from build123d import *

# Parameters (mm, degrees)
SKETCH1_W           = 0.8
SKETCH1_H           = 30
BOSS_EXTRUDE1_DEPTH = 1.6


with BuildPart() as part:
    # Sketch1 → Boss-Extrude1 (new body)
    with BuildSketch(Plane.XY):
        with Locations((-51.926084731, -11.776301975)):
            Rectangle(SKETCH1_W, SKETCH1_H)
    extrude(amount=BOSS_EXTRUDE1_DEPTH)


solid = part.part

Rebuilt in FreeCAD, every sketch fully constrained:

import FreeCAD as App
import Part
import Sketcher


def add_polygon(sketch, points):
    """Adds a closed chain of lines whose ends are joined by coincident constraints."""
    first, n = sketch.GeometryCount, len(points)
    for a, b in zip(points, points[1:] + points[:1]):
        sketch.addGeometry(Part.LineSegment(App.Vector(*a, 0), App.Vector(*b, 0)), False)
    for i in range(n):
        sketch.addConstraint(Sketcher.Constraint("Coincident", first + i, 2, first + (i + 1) % n, 1))

doc = App.newDocument("Part")
body = doc.addObject("PartDesign::Body", "Body")

# Sketch on XY plane
sketch1 = doc.addObject("Sketcher::SketchObject", "Sketch")
body.addObject(sketch1)
sketch1.AttachmentSupport = (doc.XY_Plane, [""])
sketch1.MapMode = "FlatFace"
add_polygon(sketch1, [(-52.326085, 3.223698), (-52.326085, -26.776302), (-51.526085, -26.776302), (-51.526085, 3.223698)])  # lines 0-3
sketch1.addConstraint([
    Sketcher.Constraint("Vertical", 0),
    Sketcher.Constraint("Horizontal", 1),
    Sketcher.Constraint("Vertical", 2),
    Sketcher.Constraint("Horizontal", 3),
    Sketcher.Constraint("DistanceY", 0, 2, 0, 1, 30.0),
    Sketcher.Constraint("DistanceX", 1, 1, 1, 2, 0.8),
    Sketcher.Constraint("DistanceY", 0, 2, -1, 1, 26.776302),
    Sketcher.Constraint("DistanceX", 0, 2, -1, 1, 52.326085),
])
pad1 = doc.addObject("PartDesign::Pad", "Pad")
body.addObject(pad1)
pad1.Profile = sketch1
pad1.Length = 1.6

doc.recompute()
